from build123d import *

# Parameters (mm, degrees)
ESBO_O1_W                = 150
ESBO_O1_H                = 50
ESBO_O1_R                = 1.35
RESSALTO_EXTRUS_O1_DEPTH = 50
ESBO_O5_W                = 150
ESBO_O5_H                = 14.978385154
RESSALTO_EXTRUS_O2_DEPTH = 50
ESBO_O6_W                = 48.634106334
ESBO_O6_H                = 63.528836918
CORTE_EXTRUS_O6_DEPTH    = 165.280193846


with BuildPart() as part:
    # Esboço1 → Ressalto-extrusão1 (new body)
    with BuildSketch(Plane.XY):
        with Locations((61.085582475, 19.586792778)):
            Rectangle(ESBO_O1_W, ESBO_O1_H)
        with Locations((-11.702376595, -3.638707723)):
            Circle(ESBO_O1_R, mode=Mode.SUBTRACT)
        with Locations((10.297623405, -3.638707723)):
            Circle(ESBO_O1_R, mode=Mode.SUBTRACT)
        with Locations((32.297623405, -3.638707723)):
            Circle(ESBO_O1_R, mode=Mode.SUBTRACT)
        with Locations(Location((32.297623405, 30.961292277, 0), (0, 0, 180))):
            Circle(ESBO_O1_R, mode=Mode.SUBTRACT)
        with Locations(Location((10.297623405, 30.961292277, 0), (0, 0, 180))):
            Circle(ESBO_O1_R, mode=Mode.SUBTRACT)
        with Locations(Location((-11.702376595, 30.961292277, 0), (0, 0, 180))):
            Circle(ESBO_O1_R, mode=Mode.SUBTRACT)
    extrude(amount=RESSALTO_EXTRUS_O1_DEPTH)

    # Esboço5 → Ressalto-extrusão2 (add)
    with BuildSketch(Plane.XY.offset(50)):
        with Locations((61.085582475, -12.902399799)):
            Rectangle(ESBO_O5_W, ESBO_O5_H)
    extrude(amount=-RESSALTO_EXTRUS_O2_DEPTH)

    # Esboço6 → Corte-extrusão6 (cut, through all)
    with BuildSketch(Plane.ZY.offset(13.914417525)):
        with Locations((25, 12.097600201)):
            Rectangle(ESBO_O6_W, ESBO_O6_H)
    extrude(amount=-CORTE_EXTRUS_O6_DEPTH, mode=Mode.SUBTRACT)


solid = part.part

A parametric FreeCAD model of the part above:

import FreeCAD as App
import Part
import Sketcher
from FreeCAD import Vector


def add_polygon(sketch, points):
    """Adds a closed chain of lines whose ends are joined by coincident constraints."""
    first, n = sketch.GeometryCount, len(points)
    for a, b in zip(points, points[1:] + points[:1]):
        sketch.addGeometry(Part.LineSegment(App.Vector(*a, 0), App.Vector(*b, 0)), False)
    for i in range(n):
        sketch.addConstraint(Sketcher.Constraint("Coincident", first + i, 2, first + (i + 1) % n, 1))

doc = App.newDocument("Part")
body = doc.addObject("PartDesign::Body", "Body")

sketch1 = body.newObject("Sketcher::SketchObject", "Sketch")
sketch1.AttachmentSupport = (doc.getObject("XY_Plane"), [""])
sketch1.MapMode = "FlatFace"
add_polygon(sketch1, [(-13.9, 44.6), (-13.9, -5.4), (136.1, -5.4), (136.1, 44.6)])
sketch1.addGeometry(Part.Circle(Vector(-11.7, -3.6, 0), Vector(0, 0, 1), 1.4), False)
sketch1.addGeometry(Part.Circle(Vector(10.3, -3.6, 0), Vector(0, 0, 1), 1.4), False)
sketch1.addGeometry(Part.Circle(Vector(32.3, -3.6, 0), Vector(0, 0, 1), 1.4), False)
sketch1.addGeometry(Part.Circle(Vector(-11.7, 31, 0), Vector(0, 0, 1), 1.4), False)
sketch1.addGeometry(Part.Circle(Vector(10.3, 31, 0), Vector(0, 0, 1), 1.4), False)
sketch1.addGeometry(Part.Circle(Vector(32.3, 31, 0), Vector(0, 0, 1), 1.4), False)
sketch1.addConstraint([
    Sketcher.Constraint("Vertical", 0),
    Sketcher.Constraint("Horizontal", 1),
    Sketcher.Constraint("Vertical", 2),
    Sketcher.Constraint("Horizontal", 3),
    Sketcher.Constraint("Equal", 4, 5),
    Sketcher.Constraint("Equal", 5, 6),
    Sketcher.Constraint("Equal", 6, 7),
    Sketcher.Constraint("Equal", 7, 8),
    Sketcher.Constraint("Equal", 8, 9),
    Sketcher.Constraint("Horizontal", 4, 3, 5, 3),
    Sketcher.Constraint("Horizontal", 5, 3, 6, 3),
    Sketcher.Constraint("Horizontal", 7, 3, 8, 3),
    Sketcher.Constraint("Horizontal", 8, 3, 9, 3),
    Sketcher.Constraint("Vertical", 4, 3, 7, 3),
    Sketcher.Constraint("Vertical", 5, 3, 8, 3),
    Sketcher.Constraint("Vertical", 6, 3, 9, 3),
    Sketcher.Constraint("Diameter", 4, 2.7),
    Sketcher.Constraint("DistanceX", 1, 1, 1, 2, 150.0),
    Sketcher.Constraint("DistanceY", 0, 2, 0, 1, 50.0),
    Sketcher.Constraint("DistanceX", 4, 3, 5, 3, 22.0),
    Sketcher.Constraint("DistanceX", 5, 3, 6, 3, 22.0),
    Sketcher.Constraint("DistanceY", 4, 3, 7, 3, 34.6),
    Sketcher.Constraint("DistanceY", 0, 2, 4, 3, 1.774499),
    Sketcher.Constraint("DistanceX", 0, 2, 4, 3, 2.212041),
    Sketcher.Constraint("DistanceX", 4, 3, -1, 1, 11.702377),
    Sketcher.Constraint("DistanceY", 4, 3, -1, 1, 3.638708),
])
pad1 = body.newObject("PartDesign::Pad", "Pad")
pad1.Profile = sketch1
pad1.Length = 50

sketch2 = body.newObject("Sketcher::SketchObject", "Sketch001")
sketch2.AttachmentSupport = (doc.getObject("XY_Plane"), [""])
sketch2.MapMode = "FlatFace"
sketch2.AttachmentOffset = App.Placement(Vector(0, 0, 50), App.Rotation())
add_polygon(sketch2, [(-14, -5), (-14, -20), (136, -20), (136, -5)])
sketch2.addConstraint([
    Sketcher.Constraint("Vertical", 0),
    Sketcher.Constraint("Horizontal", 1),
    Sketcher.Constraint("Vertical", 2),
    Sketcher.Constraint("Horizontal", 3),
    Sketcher.Constraint("DistanceX", 1, 1, 1, 2, 150.0),
    Sketcher.Constraint("DistanceY", 0, 2, 0, 1, 14.978385),
    Sketcher.Constraint("DistanceX", 0, 2, -1, 1, 13.914418),
    Sketcher.Constraint("DistanceY", 0, 2, -1, 1, 20.391592),
])
pad2 = body.newObject("PartDesign::Pad", "Pad001")
pad2.Profile = sketch2
pad2.Length = 50
pad2.Reversed = True

sketch3 = body.newObject("Sketcher::SketchObject", "Sketch002")
sketch3.AttachmentSupport = (doc.getObject("YZ_Plane"), [""])
sketch3.MapMode = "FlatFace"
sketch3.AttachmentOffset = App.Placement(Vector(0, 0, -13.914418), App.Rotation())
add_polygon(sketch3, [(44, 1), (-20, 1), (-20, 49), (44, 49)])
sketch3.addConstraint([
    Sketcher.Constraint("Horizontal", 0),
    Sketcher.Constraint("Vertical", 1),
    Sketcher.Constraint("Horizontal", 2),
    Sketcher.Constraint("Vertical", 3),
    Sketcher.Constraint("DistanceX", 0, 2, 0, 1, 63.528837),
    Sketcher.Constraint("DistanceY", 1, 1, 1, 2, 48.634106),
    Sketcher.Constraint("DistanceX", 0, 2, -1, 1, 19.666818),
    Sketcher.Constraint("DistanceY", -1, 1, 0, 2, 0.682947),
])
pocket1 = body.newObject("PartDesign::Pocket", "Pocket")
pocket1.Profile = sketch3
pocket1.Type = "ThroughAll"
pocket1.Reversed = True

doc.recompute()
